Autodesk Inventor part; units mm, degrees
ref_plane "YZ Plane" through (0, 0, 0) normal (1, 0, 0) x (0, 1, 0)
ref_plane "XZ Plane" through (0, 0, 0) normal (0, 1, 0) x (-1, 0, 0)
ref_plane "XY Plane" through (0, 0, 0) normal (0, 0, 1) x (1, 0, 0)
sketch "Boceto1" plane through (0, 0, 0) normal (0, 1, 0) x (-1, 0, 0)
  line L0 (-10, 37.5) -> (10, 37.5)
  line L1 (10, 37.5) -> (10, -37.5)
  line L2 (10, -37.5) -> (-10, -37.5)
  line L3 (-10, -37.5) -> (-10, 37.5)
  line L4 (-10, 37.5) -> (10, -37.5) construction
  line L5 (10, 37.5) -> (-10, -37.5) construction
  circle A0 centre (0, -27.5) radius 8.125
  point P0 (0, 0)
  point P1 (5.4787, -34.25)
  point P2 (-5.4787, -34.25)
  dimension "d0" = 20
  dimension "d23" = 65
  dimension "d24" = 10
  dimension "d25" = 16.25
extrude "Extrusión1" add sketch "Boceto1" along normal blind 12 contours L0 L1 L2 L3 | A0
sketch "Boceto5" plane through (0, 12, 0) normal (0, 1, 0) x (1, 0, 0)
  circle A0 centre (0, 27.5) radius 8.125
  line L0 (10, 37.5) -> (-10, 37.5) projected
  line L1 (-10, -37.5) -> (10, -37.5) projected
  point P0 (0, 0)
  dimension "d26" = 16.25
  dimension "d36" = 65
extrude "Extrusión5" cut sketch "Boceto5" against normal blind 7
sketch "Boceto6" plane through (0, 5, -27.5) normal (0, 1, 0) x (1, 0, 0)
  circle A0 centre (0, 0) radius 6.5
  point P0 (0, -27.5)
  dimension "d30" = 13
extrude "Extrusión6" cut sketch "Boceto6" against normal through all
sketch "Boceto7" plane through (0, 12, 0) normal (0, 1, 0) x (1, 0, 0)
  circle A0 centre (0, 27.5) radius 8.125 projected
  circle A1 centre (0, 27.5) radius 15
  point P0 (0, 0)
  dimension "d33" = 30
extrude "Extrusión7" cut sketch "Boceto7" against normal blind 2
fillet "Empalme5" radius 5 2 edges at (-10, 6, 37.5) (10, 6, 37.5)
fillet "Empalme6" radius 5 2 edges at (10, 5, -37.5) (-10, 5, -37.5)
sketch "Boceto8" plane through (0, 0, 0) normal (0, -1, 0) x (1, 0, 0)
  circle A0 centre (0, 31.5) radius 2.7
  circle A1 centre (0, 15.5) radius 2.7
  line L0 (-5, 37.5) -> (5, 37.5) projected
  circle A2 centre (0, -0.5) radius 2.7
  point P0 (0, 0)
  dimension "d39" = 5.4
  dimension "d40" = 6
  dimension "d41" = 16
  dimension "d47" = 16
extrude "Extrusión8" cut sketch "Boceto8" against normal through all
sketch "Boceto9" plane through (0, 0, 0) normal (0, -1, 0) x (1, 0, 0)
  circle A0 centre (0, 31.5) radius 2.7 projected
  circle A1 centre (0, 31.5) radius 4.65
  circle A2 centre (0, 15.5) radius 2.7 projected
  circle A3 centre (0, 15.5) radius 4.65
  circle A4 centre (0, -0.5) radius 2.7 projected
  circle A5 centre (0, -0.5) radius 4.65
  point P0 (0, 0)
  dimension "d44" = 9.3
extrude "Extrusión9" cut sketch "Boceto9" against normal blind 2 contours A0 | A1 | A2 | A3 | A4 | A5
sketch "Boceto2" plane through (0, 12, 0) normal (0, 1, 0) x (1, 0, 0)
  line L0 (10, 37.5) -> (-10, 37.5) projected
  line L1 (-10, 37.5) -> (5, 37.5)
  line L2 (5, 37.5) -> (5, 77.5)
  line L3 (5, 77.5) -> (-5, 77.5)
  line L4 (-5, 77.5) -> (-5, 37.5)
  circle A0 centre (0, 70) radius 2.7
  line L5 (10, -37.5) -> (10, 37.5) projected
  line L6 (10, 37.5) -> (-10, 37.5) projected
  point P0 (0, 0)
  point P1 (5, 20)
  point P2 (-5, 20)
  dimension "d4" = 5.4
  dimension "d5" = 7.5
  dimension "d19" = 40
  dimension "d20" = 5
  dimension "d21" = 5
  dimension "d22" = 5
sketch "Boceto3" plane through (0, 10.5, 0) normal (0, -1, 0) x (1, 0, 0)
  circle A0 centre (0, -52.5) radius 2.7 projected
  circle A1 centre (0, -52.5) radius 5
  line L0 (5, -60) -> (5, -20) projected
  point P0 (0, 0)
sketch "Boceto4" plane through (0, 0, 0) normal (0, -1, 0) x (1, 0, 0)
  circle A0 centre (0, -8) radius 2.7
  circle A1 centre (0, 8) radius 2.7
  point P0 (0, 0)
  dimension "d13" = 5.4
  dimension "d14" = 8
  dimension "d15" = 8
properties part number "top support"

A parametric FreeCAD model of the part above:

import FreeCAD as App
import Part
import Sketcher
from FreeCAD import Vector


def edges_at(feature, points):
    """Names of the edges that pass closest to the given points."""
    edges = feature.Shape.Edges
    near = lambda p: min(range(len(edges)), key=lambda i: edges[i].distToShape(Part.Vertex(*p))[0])
    return sorted({f"Edge{near(p) + 1}" for p in points})


def add_polygon(sketch, points):
    """Adds a closed chain of lines whose ends are joined by coincident constraints."""
    first, n = sketch.GeometryCount, len(points)
    for a, b in zip(points, points[1:] + points[:1]):
        sketch.addGeometry(Part.LineSegment(App.Vector(*a, 0), App.Vector(*b, 0)), False)
    for i in range(n):
        sketch.addConstraint(Sketcher.Constraint("Coincident", first + i, 2, first + (i + 1) % n, 1))

doc = App.newDocument("Part")
body = doc.addObject("PartDesign::Body", "Body")

sketch1 = doc.addObject("Sketcher::SketchObject", "Sketch")
body.addObject(sketch1)
sketch1.AttachmentSupport = (doc.XZ_Plane, [""])
sketch1.MapMode = "FlatFace"
add_polygon(sketch1, [(-10, 37.5), (10, 37.5), (10, -37.5), (-10, -37.5)])
sketch1.addConstraint([
    Sketcher.Constraint("Horizontal", 0),
    Sketcher.Constraint("Vertical", 1),
    Sketcher.Constraint("Horizontal", 2),
    Sketcher.Constraint("Vertical", 3),
    Sketcher.Constraint("Symmetric", 0, 2, 2, 2, -1, 1),
    Sketcher.Constraint("DistanceX", 0, 1, 0, 2, 20.0),
    Sketcher.Constraint("DistanceY", 1, 2, 1, 1, 75.0),
])
pad1 = doc.addObject("PartDesign::Pad", "Pad")
body.addObject(pad1)
pad1.Profile = sketch1
pad1.Length = 12
pad1.Reversed = True

sketch2 = doc.addObject("Sketcher::SketchObject", "Sketch001")
body.addObject(sketch2)
sketch2.AttachmentSupport = (doc.XZ_Plane, [""])
sketch2.MapMode = "FlatFace"
sketch2.AttachmentOffset = App.Placement(Vector(0, 0, -12), App.Rotation())
sketch2.addGeometry(Part.Circle(Vector(0, -27.5, 0), Vector(0, 0, 1), 8.125), False)
sketch2.addConstraint([
    Sketcher.Constraint("PointOnObject", 0, 3, -2),
    Sketcher.Constraint("Diameter", 0, 16.25),
    Sketcher.Constraint("DistanceY", 0, 3, -1, 1, 27.5),
])
pocket1 = doc.addObject("PartDesign::Pocket", "Pocket")
body.addObject(pocket1)
pocket1.Profile = sketch2
pocket1.Length = 7
pocket1.Reversed = True

sketch3 = doc.addObject("Sketcher::SketchObject", "Sketch002")
body.addObject(sketch3)
sketch3.AttachmentSupport = (doc.XZ_Plane, [""])
sketch3.MapMode = "FlatFace"
sketch3.AttachmentOffset = App.Placement(Vector(0, 0, -5), App.Rotation())
sketch3.addGeometry(Part.Circle(Vector(0, -27.5, 0), Vector(0, 0, 1), 6.5), False)
sketch3.addConstraint([
    Sketcher.Constraint("PointOnObject", 0, 3, -2),
    Sketcher.Constraint("Diameter", 0, 13.0),
    Sketcher.Constraint("DistanceY", 0, 3, -1, 1, 27.5),
])
pocket2 = doc.addObject("PartDesign::Pocket", "Pocket001")
body.addObject(pocket2)
pocket2.Profile = sketch3
pocket2.Type = "ThroughAll"
pocket2.Reversed = True

sketch4 = doc.addObject("Sketcher::SketchObject", "Sketch003")
body.addObject(sketch4)
sketch4.AttachmentSupport = (doc.XZ_Plane, [""])
sketch4.MapMode = "FlatFace"
sketch4.AttachmentOffset = App.Placement(Vector(0, 0, -12), App.Rotation())
sketch4.addGeometry([
    Part.Circle(Vector(0, -27.5, 0), Vector(0, 0, 1), 15),
    Part.Circle(Vector(0, -27.5, 0), Vector(0, 0, 1), 8.125),
], False)
sketch4.addConstraint([
    Sketcher.Constraint("Coincident", 1, 3, 0, 3),
    Sketcher.Constraint("PointOnObject", 0, 3, -2),
    Sketcher.Constraint("Diameter", 0, 30.0),
    Sketcher.Constraint("Diameter", 1, 16.25),
    Sketcher.Constraint("DistanceY", 0, 3, -1, 1, 27.5),
])
pocket3 = doc.addObject("PartDesign::Pocket", "Pocket002")
body.addObject(pocket3)
pocket3.Profile = sketch4
pocket3.Length = 2
pocket3.Reversed = True
doc.recompute()

fillet = doc.addObject("PartDesign::Fillet", "Fillet")
body.addObject(fillet)
fillet.Base = (pocket3, edges_at(pocket3, [(-10, 6, 37.5), (10, 6, 37.5)]))
fillet.Radius = 5
doc.recompute()

fillet2 = doc.addObject("PartDesign::Fillet", "Fillet001")
body.addObject(fillet2)
fillet2.Base = (fillet, edges_at(fillet, [(10, 5, -37.5), (-10, 5, -37.5)]))
fillet2.Radius = 5

sketch5 = doc.addObject("Sketcher::SketchObject", "Sketch004")
body.addObject(sketch5)
sketch5.AttachmentSupport = (doc.XZ_Plane, [""])
sketch5.MapMode = "FlatFace"
sketch5.addGeometry([
    Part.Circle(Vector(0, 31.5, 0), Vector(0, 0, 1), 2.7),
    Part.Circle(Vector(0, 15.5, 0), Vector(0, 0, 1), 2.7),
    Part.Circle(Vector(0, -0.5, 0), Vector(0, 0, 1), 2.7),
], False)
sketch5.addConstraint([
    Sketcher.Constraint("Equal", 0, 1),
    Sketcher.Constraint("Equal", 1, 2),
    Sketcher.Constraint("PointOnObject", 0, 3, -2),
    Sketcher.Constraint("PointOnObject", 1, 3, -2),
    Sketcher.Constraint("PointOnObject", 2, 3, -2),
    Sketcher.Constraint("Diameter", 0, 5.4),
    Sketcher.Constraint("DistanceY", 1, 3, 0, 3, 16.0),
    Sketcher.Constraint("DistanceY", 2, 3, 1, 3, 16.0),
    Sketcher.Constraint("DistanceY", -1, 1, 0, 3, 31.5),
])
pocket4 = doc.addObject("PartDesign::Pocket", "Pocket003")
body.addObject(pocket4)
pocket4.Profile = sketch5
pocket4.Type = "ThroughAll"

sketch6 = doc.addObject("Sketcher::SketchObject", "Sketch005")
body.addObject(sketch6)
sketch6.AttachmentSupport = (doc.XZ_Plane, [""])
sketch6.MapMode = "FlatFace"
sketch6.addGeometry([
    Part.Circle(Vector(0, 31.5, 0), Vector(0, 0, 1), 4.65),
    Part.Circle(Vector(0, 15.5, 0), Vector(0, 0, 1), 4.65),
    Part.Circle(Vector(0, -0.5, 0), Vector(0, 0, 1), 4.65),
], False)
sketch6.addConstraint([
    Sketcher.Constraint("Equal", 0, 1),
    Sketcher.Constraint("Equal", 1, 2),
    Sketcher.Constraint("PointOnObject", 0, 3, -2),
    Sketcher.Constraint("PointOnObject", 1, 3, -2),
    Sketcher.Constraint("PointOnObject", 2, 3, -2),
    Sketcher.Constraint("Diameter", 0, 9.3),
    Sketcher.Constraint("DistanceY", 1, 3, 0, 3, 16.0),
    Sketcher.Constraint("DistanceY", 2, 3, 1, 3, 16.0),
    Sketcher.Constraint("DistanceY", -1, 1, 0, 3, 31.5),
])
pocket5 = doc.addObject("PartDesign::Pocket", "Pocket004")
body.addObject(pocket5)
pocket5.Profile = sketch6
pocket5.Length = 2

doc.recompute()
